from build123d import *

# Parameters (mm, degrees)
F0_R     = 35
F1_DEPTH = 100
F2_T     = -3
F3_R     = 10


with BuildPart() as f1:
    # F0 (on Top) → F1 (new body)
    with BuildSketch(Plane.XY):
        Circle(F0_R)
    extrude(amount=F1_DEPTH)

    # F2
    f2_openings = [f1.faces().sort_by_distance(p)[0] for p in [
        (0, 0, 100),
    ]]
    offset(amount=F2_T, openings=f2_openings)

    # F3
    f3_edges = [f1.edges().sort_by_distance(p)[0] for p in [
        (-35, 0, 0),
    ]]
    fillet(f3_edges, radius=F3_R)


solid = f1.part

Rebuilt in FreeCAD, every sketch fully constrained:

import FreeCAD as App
import Part
import Sketcher

V = App.Vector


def edges_at(feature, points):
    """Names of the edges that pass closest to the given points."""
    edges = feature.Shape.Edges
    near = lambda p: min(range(len(edges)), key=lambda i: edges[i].distToShape(Part.Vertex(*p))[0])
    return sorted({f"Edge{near(p) + 1}" for p in points})


def faces_at(feature, points):
    """Names of the faces that lie closest to the given points."""
    faces = feature.Shape.Faces
    near = lambda p: min(range(len(faces)), key=lambda i: faces[i].distToShape(Part.Vertex(*p))[0])
    return sorted({f"Face{near(p) + 1}" for p in points})

doc = App.newDocument("Part")
body = doc.addObject("PartDesign::Body", "Body")

# Sketch on XY plane
sketch1 = body.newObject("Sketcher::SketchObject", "Sketch")
sketch1.AttachmentSupport = (doc.getObject("XY_Plane"), [""])
sketch1.MapMode = "FlatFace"
sketch1.addGeometry(Part.Circle(V(0, 0, 0), V(0, 0, 1), 35), False)
sketch1.addConstraint([
    Sketcher.Constraint("Coincident", 0, 3, -1, 1),
    Sketcher.Constraint("Diameter", 0, 70.0),
])
pad1 = body.newObject("PartDesign::Pad", "Pad")
pad1.Profile = sketch1
pad1.Length = 100
doc.recompute()

thickness = body.newObject("PartDesign::Thickness", "Thickness")
thickness.Base = (pad1, faces_at(pad1, [(0, 0, 100)]))
thickness.Value = 3
thickness.Reversed = True
thickness.Join = "Arc"
doc.recompute()

fillet = body.newObject("PartDesign::Fillet", "Fillet")
fillet.Base = (thickness, edges_at(thickness, [(-35, 0, 0)]))
fillet.Radius = 10

doc.recompute()
